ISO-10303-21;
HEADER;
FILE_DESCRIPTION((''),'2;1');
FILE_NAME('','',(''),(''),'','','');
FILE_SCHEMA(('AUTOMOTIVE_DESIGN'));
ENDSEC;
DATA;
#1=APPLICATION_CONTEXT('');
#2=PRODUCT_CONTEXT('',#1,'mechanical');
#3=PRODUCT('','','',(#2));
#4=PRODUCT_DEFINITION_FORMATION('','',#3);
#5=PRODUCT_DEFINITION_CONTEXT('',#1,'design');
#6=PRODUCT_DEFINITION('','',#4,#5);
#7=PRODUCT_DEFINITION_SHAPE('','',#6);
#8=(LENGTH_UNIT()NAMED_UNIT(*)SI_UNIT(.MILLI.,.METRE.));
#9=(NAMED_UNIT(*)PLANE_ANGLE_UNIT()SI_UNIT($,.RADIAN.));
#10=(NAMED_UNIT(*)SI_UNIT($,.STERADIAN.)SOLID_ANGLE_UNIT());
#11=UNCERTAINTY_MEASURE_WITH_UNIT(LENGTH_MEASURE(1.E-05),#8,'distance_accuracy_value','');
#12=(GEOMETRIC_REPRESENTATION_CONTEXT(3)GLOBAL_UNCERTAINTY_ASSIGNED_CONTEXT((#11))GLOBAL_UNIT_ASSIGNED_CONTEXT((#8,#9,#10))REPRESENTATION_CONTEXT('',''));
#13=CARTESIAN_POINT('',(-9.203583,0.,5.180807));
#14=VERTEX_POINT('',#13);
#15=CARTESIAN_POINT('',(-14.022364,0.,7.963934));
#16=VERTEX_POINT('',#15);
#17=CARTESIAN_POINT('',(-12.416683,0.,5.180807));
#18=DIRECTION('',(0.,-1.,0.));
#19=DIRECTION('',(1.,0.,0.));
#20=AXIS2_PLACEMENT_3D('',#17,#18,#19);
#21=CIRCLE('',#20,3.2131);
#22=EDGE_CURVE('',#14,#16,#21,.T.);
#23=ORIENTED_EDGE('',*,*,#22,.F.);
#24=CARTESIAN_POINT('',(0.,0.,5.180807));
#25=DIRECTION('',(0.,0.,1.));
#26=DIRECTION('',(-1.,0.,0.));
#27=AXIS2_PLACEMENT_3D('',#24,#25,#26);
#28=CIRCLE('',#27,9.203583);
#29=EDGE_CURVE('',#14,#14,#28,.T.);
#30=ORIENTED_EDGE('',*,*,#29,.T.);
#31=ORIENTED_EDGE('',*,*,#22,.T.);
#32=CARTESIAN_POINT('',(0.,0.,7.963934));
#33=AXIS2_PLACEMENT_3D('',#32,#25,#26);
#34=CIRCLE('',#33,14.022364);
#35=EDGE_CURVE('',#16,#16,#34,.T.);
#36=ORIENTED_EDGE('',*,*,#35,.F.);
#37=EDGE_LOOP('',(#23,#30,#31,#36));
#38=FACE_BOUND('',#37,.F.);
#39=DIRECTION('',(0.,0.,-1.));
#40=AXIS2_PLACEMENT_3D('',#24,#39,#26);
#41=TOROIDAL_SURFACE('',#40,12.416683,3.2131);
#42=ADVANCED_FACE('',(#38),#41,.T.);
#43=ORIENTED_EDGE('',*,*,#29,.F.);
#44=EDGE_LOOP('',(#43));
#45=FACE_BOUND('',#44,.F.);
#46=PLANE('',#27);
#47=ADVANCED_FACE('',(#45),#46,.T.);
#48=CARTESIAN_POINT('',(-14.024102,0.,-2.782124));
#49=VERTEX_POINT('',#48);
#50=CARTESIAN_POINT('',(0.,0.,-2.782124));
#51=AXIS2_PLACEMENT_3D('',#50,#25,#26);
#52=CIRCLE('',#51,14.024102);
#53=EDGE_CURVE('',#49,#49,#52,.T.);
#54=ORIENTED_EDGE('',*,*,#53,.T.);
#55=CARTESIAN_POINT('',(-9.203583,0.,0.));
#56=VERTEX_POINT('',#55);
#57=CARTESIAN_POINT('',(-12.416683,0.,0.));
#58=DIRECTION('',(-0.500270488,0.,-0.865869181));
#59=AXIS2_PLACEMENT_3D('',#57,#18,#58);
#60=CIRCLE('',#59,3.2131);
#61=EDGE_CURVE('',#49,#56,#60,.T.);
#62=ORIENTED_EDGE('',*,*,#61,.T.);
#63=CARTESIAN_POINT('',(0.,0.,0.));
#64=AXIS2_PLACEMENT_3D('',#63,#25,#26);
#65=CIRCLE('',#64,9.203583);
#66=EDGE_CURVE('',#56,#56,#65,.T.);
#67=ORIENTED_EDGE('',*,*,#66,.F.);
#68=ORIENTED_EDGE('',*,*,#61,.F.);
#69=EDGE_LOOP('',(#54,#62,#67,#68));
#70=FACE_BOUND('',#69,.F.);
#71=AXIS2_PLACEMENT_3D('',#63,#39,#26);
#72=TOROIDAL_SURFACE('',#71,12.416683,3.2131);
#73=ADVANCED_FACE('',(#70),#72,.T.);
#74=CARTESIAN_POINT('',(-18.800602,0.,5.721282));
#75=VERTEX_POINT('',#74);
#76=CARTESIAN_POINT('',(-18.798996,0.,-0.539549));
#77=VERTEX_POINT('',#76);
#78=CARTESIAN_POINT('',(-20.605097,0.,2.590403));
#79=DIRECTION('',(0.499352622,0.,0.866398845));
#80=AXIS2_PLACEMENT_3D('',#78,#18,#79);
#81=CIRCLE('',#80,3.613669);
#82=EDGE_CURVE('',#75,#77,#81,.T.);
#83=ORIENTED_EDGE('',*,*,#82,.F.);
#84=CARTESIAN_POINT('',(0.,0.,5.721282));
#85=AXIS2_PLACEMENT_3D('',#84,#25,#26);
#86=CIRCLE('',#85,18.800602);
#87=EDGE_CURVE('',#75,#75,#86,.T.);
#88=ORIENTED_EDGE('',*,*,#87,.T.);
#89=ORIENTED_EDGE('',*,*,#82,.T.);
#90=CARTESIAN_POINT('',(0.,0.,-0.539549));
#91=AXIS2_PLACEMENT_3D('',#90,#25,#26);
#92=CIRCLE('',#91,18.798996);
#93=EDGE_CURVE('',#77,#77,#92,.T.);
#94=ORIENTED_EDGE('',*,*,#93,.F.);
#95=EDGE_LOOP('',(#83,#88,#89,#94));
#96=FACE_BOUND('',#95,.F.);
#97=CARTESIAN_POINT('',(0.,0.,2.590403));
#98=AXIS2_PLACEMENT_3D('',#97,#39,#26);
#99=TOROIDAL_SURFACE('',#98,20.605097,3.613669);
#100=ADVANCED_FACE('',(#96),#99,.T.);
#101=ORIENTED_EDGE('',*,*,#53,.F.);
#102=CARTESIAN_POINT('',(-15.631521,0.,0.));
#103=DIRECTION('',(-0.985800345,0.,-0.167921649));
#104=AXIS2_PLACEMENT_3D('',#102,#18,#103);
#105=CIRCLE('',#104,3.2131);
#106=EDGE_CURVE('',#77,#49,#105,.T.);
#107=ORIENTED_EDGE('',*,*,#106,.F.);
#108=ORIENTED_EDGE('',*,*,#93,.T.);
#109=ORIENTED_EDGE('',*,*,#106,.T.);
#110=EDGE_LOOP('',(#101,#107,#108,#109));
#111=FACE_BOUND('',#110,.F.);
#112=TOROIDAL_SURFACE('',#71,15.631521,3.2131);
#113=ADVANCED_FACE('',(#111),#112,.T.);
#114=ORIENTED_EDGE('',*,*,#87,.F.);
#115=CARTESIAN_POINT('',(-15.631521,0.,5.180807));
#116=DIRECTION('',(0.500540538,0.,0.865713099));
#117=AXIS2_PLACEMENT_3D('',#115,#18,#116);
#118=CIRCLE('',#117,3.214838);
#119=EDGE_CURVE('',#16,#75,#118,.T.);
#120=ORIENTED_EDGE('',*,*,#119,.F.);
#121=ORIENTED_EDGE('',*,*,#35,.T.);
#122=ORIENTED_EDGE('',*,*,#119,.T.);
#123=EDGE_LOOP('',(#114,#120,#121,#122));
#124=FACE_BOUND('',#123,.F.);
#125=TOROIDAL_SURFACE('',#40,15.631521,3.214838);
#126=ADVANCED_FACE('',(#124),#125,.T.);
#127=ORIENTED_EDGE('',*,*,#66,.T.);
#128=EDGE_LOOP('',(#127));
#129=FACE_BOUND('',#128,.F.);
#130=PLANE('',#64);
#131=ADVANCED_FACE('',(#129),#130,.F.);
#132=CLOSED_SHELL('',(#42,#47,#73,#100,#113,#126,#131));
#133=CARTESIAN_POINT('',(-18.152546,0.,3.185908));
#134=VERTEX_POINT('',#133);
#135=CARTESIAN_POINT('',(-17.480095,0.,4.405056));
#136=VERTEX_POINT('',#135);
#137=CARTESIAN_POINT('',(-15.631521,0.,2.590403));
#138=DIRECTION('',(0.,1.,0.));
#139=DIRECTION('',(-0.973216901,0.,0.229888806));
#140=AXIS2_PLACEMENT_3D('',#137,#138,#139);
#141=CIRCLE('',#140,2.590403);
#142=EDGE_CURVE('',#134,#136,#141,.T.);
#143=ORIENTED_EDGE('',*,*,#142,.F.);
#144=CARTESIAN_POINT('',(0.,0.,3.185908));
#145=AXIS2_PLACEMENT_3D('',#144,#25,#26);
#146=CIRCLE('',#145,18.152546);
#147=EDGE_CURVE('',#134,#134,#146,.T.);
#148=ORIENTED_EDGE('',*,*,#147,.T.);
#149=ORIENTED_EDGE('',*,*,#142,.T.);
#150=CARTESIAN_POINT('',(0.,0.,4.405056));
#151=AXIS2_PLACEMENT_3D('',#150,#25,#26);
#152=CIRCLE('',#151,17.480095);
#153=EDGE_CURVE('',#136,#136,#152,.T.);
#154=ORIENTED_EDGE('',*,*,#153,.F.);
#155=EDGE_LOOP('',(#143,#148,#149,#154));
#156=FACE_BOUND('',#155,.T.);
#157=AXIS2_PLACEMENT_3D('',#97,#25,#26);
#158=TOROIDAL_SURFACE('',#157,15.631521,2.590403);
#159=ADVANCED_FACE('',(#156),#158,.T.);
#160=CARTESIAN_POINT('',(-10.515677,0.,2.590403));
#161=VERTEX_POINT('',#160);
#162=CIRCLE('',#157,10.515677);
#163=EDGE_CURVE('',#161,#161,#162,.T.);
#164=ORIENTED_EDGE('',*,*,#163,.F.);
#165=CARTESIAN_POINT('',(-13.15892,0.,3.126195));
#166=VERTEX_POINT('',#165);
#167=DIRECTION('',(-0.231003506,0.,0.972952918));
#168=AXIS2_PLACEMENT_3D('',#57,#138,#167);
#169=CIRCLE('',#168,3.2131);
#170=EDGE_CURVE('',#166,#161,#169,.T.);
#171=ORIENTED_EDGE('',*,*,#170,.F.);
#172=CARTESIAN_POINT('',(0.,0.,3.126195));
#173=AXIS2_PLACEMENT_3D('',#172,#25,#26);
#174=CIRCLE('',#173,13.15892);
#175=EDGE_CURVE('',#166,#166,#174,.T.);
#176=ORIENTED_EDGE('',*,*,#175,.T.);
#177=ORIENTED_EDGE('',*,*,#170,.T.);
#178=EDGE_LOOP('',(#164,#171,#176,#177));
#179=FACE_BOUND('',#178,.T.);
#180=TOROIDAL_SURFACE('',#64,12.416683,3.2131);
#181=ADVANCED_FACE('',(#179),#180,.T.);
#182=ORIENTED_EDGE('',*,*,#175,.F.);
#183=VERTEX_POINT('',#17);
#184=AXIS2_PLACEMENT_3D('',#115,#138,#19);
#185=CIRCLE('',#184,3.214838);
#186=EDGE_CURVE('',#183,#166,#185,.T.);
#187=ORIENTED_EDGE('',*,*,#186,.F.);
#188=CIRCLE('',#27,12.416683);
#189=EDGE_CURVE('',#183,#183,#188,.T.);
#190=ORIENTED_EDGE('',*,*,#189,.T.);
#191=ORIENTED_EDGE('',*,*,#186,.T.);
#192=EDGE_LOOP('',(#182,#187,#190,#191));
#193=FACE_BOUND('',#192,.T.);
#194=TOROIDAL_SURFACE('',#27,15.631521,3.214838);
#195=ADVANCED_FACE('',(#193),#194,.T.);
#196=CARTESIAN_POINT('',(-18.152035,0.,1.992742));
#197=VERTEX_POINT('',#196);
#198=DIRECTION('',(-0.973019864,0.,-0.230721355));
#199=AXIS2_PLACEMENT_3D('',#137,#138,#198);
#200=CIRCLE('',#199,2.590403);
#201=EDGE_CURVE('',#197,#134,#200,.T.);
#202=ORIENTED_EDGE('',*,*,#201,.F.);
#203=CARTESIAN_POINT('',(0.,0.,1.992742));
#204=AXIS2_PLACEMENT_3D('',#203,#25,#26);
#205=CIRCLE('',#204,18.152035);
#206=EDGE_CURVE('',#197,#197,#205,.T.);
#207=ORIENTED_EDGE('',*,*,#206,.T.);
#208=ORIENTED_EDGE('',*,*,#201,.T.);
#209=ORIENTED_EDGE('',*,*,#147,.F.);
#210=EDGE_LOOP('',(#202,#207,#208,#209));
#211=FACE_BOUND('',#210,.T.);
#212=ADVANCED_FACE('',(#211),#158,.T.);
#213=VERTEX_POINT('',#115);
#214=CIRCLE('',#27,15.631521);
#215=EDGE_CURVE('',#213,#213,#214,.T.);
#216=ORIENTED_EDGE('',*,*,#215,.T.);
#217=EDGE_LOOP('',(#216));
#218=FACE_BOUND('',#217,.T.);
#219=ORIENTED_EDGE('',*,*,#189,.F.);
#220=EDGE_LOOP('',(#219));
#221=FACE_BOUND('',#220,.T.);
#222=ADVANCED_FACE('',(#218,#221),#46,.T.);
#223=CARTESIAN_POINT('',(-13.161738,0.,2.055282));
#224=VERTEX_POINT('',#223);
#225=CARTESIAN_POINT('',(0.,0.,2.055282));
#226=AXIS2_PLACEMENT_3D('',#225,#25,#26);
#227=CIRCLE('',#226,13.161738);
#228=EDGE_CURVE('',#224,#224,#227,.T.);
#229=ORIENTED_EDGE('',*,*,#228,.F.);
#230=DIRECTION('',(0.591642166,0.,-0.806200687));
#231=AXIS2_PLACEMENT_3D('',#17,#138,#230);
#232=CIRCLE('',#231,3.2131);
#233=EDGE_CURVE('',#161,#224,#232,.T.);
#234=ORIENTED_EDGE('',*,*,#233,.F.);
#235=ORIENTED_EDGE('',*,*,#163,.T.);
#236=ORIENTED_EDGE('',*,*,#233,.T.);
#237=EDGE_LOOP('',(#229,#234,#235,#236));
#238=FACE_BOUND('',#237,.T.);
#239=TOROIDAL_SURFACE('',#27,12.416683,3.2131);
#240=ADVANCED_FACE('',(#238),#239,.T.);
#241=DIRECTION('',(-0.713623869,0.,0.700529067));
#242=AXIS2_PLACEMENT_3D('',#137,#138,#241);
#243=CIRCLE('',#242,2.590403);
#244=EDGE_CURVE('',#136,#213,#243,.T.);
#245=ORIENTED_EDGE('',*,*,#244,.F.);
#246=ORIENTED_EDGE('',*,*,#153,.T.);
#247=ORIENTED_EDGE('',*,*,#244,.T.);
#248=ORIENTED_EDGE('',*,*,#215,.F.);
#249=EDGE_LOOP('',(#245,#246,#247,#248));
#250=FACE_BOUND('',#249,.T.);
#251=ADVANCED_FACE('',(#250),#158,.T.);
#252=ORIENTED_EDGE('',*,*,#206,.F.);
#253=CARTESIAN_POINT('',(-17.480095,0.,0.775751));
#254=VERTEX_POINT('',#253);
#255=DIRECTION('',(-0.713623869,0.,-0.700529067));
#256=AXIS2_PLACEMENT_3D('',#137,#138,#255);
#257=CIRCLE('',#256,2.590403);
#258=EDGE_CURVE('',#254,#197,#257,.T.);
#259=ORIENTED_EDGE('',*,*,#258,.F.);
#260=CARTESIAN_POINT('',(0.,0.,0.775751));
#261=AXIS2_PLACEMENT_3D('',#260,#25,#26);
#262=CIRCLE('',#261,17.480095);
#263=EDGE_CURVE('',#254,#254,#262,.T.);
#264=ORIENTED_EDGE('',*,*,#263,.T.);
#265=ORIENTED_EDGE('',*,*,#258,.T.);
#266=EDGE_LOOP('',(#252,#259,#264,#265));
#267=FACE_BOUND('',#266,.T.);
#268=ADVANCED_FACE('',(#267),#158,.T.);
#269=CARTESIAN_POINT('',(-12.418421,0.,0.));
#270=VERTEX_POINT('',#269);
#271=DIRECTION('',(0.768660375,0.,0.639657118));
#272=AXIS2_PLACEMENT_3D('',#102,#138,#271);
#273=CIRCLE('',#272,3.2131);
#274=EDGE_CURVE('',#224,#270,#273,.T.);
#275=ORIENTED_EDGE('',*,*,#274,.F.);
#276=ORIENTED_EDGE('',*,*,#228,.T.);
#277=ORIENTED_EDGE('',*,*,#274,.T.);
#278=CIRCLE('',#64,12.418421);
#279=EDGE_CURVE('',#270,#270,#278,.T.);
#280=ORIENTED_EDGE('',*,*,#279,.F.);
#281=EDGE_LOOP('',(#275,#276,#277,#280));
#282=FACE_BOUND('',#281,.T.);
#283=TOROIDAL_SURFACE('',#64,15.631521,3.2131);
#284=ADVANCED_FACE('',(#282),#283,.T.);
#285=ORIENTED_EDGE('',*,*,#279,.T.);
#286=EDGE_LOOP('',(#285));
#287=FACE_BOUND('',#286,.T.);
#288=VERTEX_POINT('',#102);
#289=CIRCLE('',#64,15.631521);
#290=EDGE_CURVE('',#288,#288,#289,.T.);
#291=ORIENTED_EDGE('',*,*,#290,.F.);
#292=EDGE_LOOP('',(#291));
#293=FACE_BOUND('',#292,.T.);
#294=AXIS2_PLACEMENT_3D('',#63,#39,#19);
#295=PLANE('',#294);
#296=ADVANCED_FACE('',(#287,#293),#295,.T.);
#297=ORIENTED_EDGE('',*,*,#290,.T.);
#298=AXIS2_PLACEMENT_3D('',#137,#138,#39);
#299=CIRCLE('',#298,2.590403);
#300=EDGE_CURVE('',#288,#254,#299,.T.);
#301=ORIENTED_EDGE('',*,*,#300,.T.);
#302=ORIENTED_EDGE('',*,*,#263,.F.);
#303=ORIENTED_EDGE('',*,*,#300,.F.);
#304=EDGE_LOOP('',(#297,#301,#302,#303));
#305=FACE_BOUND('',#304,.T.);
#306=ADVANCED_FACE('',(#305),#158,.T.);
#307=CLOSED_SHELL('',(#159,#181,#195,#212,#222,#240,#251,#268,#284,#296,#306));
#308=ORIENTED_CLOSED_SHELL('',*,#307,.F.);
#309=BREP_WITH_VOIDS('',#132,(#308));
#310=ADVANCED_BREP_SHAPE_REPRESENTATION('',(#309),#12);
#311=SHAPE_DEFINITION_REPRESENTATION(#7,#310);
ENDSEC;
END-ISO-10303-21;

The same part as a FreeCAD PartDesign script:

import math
import FreeCAD as App
import Part
import Sketcher
Q = App.Units.Quantity

doc = App.newDocument("Part")
params = doc.addObject("Spreadsheet::Sheet", "Params")
for row, (alias, value) in enumerate([
    ("revolution_angle", "360 deg"),
], start=1):
    params.set(f"A{row}", alias)
    params.set(f"B{row}", "=" + value)
    params.setAlias(f"B{row}", alias)

body = doc.addObject("PartDesign::Body", "Body")

# Sketch on XZ plane
sketch1 = doc.addObject("Sketcher::SketchObject", "Sketch")
body.addObject(sketch1)
sketch1.AttachmentSupport = (doc.XZ_Plane, [""])
sketch1.MapMode = "FlatFace"
sketch1.addGeometry(Part.ArcOfCircle(Part.Circle(App.Vector(-15.631521, 5.180807, 0), App.Vector(0, 0, 1), 3.214838), math.radians(59.964232), math.radians(170.321537)), False)
sketch1.addGeometry(Part.ArcOfCircle(Part.Circle(App.Vector(-20.605097, 2.590403, 0), App.Vector(0, 0, 1), 3.613669), math.radians(60.042821), math.radians(299.986564)), False)
sketch1.addGeometry(Part.ArcOfCircle(Part.Circle(App.Vector(-15.631521, 0, 0), App.Vector(0, 0, 1), 3.2131), math.radians(-170.332999), math.radians(-59.982103)), False)
sketch1.addGeometry(Part.ArcOfCircle(Part.Circle(App.Vector(-12.416683, 0, 0), App.Vector(0, 0, 1), 3.2131), math.radians(-120.017897), math.radians(0)), False)
sketch1.addGeometry(Part.LineSegment(App.Vector(-9.203583, 0, 0), App.Vector(0, 0, 0)), False)
sketch1.addGeometry(Part.LineSegment(App.Vector(0, 0, 0), App.Vector(0, 5.180807, 0)), False)
sketch1.addGeometry(Part.LineSegment(App.Vector(0, 5.180807, 0), App.Vector(-9.203583, 5.180807, 0)), False)
sketch1.addGeometry(Part.ArcOfCircle(Part.Circle(App.Vector(-12.416683, 5.180807, 0), App.Vector(0, 0, 1), 3.2131), math.radians(0), math.radians(119.982116)), False)
sketch1.addGeometry(Part.ArcOfCircle(Part.Circle(App.Vector(-15.631521, 2.590403, 0), App.Vector(0, 0, 1), 2.590403), math.radians(166.709475), math.radians(193.339545)), False)
sketch1.addGeometry(Part.ArcOfCircle(Part.Circle(App.Vector(-15.631521, 2.590403, 0), App.Vector(0, 0, 1), 2.590403), math.radians(135.530533), math.radians(166.709475)), False)
sketch1.addGeometry(Part.ArcOfCircle(Part.Circle(App.Vector(-15.631521, 2.590403, 0), App.Vector(0, 0, 1), 2.590403), math.radians(90), math.radians(135.530533)), False)
sketch1.addGeometry(Part.LineSegment(App.Vector(-15.631521, 5.180807, 0), App.Vector(-12.416683, 5.180807, 0)), False)
sketch1.addGeometry(Part.ArcOfCircle(Part.Circle(App.Vector(-15.631521, 5.180807, 0), App.Vector(0, 0, 1), 3.214838), math.radians(-39.724944), math.radians(0)), False)
sketch1.addGeometry(Part.ArcOfCircle(Part.Circle(App.Vector(-12.416683, 0, 0), App.Vector(0, 0, 1), 3.2131), math.radians(53.726372), math.radians(103.35616)), False)
sketch1.addGeometry(Part.ArcOfCircle(Part.Circle(App.Vector(-12.416683, 5.180807, 0), App.Vector(0, 0, 1), 3.2131), math.radians(-103.407816), math.radians(-53.726372)), False)
sketch1.addGeometry(Part.ArcOfCircle(Part.Circle(App.Vector(-15.631521, 0, 0), App.Vector(0, 0, 1), 3.2131), math.radians(0), math.radians(39.766256)), False)
sketch1.addGeometry(Part.LineSegment(App.Vector(-12.418421, 0, 0), App.Vector(-15.631521, 0, 0)), False)
sketch1.addGeometry(Part.ArcOfCircle(Part.Circle(App.Vector(-15.631521, 2.590403, 0), App.Vector(0, 0, 1), 2.590403), math.radians(-135.530533), math.radians(-90)), False)
sketch1.addGeometry(Part.ArcOfCircle(Part.Circle(App.Vector(-15.631521, 2.590403, 0), App.Vector(0, 0, 1), 2.590403), math.radians(-166.660455), math.radians(-135.530533)), False)
sketch1.addConstraint(Sketcher.Constraint("Coincident", 0, 2, 1, 1))
sketch1.addConstraint(Sketcher.Constraint("Coincident", 1, 2, 2, 1))
sketch1.addConstraint(Sketcher.Constraint("Coincident", 2, 2, 3, 1))
sketch1.addConstraint(Sketcher.Constraint("Coincident", 3, 2, 4, 1))
sketch1.addConstraint(Sketcher.Constraint("Coincident", 4, 2, 5, 1))
sketch1.addConstraint(Sketcher.Constraint("Coincident", 5, 2, 6, 1))
sketch1.addConstraint(Sketcher.Constraint("Coincident", 6, 2, 7, 1))
sketch1.addConstraint(Sketcher.Constraint("Coincident", 7, 2, 0, 1))
sketch1.addConstraint(Sketcher.Constraint("Tangent", 8, 1, 9, 2))
sketch1.addConstraint(Sketcher.Constraint("Tangent", 9, 1, 10, 2))
sketch1.addConstraint(Sketcher.Constraint("Tangent", 10, 1, 11, 1))
sketch1.addConstraint(Sketcher.Constraint("Coincident", 11, 2, 12, 2))
sketch1.addConstraint(Sketcher.Constraint("Coincident", 12, 1, 13, 2))
sketch1.addConstraint(Sketcher.Constraint("Coincident", 13, 1, 14, 2))
sketch1.addConstraint(Sketcher.Constraint("Coincident", 14, 1, 15, 2))
sketch1.addConstraint(Sketcher.Constraint("Coincident", 15, 1, 16, 1))
sketch1.addConstraint(Sketcher.Constraint("Tangent", 16, 2, 17, 2))
sketch1.addConstraint(Sketcher.Constraint("Tangent", 17, 1, 18, 2))
sketch1.addConstraint(Sketcher.Constraint("Tangent", 18, 1, 8, 2))
sketch1.addConstraint(Sketcher.Constraint("Horizontal", 4))
sketch1.addConstraint(Sketcher.Constraint("Vertical", 5))
sketch1.addConstraint(Sketcher.Constraint("Horizontal", 6))
sketch1.addConstraint(Sketcher.Constraint("Horizontal", 11))
sketch1.addConstraint(Sketcher.Constraint("Horizontal", 16))
sketch1.addConstraint(Sketcher.Constraint("Coincident", 4, 2, -1, 1))
sketch1.addConstraint(Sketcher.Constraint("Coincident", 10, 3, 8, 3))
sketch1.addConstraint(Sketcher.Constraint("Coincident", 12, 3, 0, 3))
sketch1.addConstraint(Sketcher.Constraint("Coincident", 13, 3, 3, 3))
sketch1.addConstraint(Sketcher.Constraint("Coincident", 14, 3, 7, 3))
sketch1.addConstraint(Sketcher.Constraint("Coincident", 15, 3, 2, 3))
sketch1.addConstraint(Sketcher.Constraint("Coincident", 17, 3, 8, 3))
sketch1.addConstraint(Sketcher.Constraint("Coincident", 10, 1, 0, 3))
sketch1.addConstraint(Sketcher.Constraint("Coincident", 11, 2, 7, 3))
sketch1.addConstraint(Sketcher.Constraint("Coincident", 16, 2, 2, 3))
sketch1.addConstraint(Sketcher.Constraint("Equal", 2, 3))
sketch1.addConstraint(Sketcher.Constraint("Equal", 3, 7))
sketch1.addConstraint(Sketcher.Constraint("Equal", 0, 12))
sketch1.addConstraint(Sketcher.Constraint("Equal", 7, 13))
sketch1.addConstraint(Sketcher.Constraint("Equal", 13, 14))
sketch1.addConstraint(Sketcher.Constraint("Equal", 14, 15))
sketch1.addConstraint(Sketcher.Constraint("PointOnObject", 2, 3, -1))
sketch1.addConstraint(Sketcher.Constraint("PointOnObject", 3, 3, -1))
sketch1.addConstraint(Sketcher.Constraint("Horizontal", 1, 3, 8, 3))
sketch1.addConstraint(Sketcher.Constraint("Horizontal", 14, 3, 5, 2))
sketch1.addConstraint(Sketcher.Constraint("Horizontal", 18, 3, 13, 1))
sketch1.addConstraint(Sketcher.Constraint("Vertical", 9, 1, 17, 1))
sketch1.addConstraint(Sketcher.Constraint("Radius", 2, Q("0.1265 in")))
sketch1.addConstraint(Sketcher.Constraint("Radius", 0, 3.214838))
sketch1.addConstraint(Sketcher.Constraint("Radius", 1, 3.613669))
sketch1.addConstraint(Sketcher.Constraint("Radius", 8, 2.590403))
sketch1.addConstraint(Sketcher.Constraint("DistanceX", 0, 2, -1, 1, 18.800602))
sketch1.addConstraint(Sketcher.Constraint("DistanceX", 1, 3, 1, 2, 1.8061))
sketch1.addConstraint(Sketcher.Constraint("DistanceX", 1, 2, 17, 1, 1.318901))
sketch1.addConstraint(Sketcher.Constraint("DistanceY", -1, 1, 8, 1, 3.185908))
sketch1.addConstraint(Sketcher.Constraint("DistanceX", 8, 1, 18, 1, 0.00051))
revolution = doc.addObject("PartDesign::Revolution", "Revolution")
body.addObject(revolution)
revolution.Profile = sketch1
revolution.ReferenceAxis = (sketch1, ["V_Axis"])
revolution.setExpression("Angle", "Params.revolution_angle")

doc.recompute()
